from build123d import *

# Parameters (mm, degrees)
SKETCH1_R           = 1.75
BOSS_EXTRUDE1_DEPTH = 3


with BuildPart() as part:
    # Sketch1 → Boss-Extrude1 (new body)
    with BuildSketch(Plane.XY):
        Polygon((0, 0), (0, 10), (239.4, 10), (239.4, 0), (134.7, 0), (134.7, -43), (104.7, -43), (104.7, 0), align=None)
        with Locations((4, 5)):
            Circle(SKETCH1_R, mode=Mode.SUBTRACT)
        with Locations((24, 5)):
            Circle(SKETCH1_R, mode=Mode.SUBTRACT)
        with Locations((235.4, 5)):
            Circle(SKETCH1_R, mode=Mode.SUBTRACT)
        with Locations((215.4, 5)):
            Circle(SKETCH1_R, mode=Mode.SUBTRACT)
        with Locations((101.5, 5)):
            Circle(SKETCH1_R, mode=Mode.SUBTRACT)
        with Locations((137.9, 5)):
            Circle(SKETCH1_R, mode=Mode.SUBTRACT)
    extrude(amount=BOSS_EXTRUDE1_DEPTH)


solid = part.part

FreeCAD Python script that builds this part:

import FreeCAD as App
import Part
import Sketcher
from FreeCAD import Vector


def add_polygon(sketch, points):
    """Adds a closed chain of lines whose ends are joined by coincident constraints."""
    first, n = sketch.GeometryCount, len(points)
    for a, b in zip(points, points[1:] + points[:1]):
        sketch.addGeometry(Part.LineSegment(App.Vector(*a, 0), App.Vector(*b, 0)), False)
    for i in range(n):
        sketch.addConstraint(Sketcher.Constraint("Coincident", first + i, 2, first + (i + 1) % n, 1))

doc = App.newDocument("Part")
body = doc.addObject("PartDesign::Body", "Body")

# Sketch on XY plane
sketch1 = body.newObject("Sketcher::SketchObject", "Sketch")
sketch1.AttachmentSupport = (doc.getObject("XY_Plane"), [""])
sketch1.MapMode = "FlatFace"
add_polygon(sketch1, [(0, 10), (0, 0), (104.7, 0), (104.7, -43), (134.7, -43), (134.7, 0), (239.4, 0), (239.4, 10)])  # lines 0-7
sketch1.addGeometry(Part.Circle(Vector(235.4, 5, 0), Vector(0, 0, 1), 1.75), False)  # 8
sketch1.addGeometry(Part.Circle(Vector(215.4, 5, 0), Vector(0, 0, 1), 1.75), False)  # 9
sketch1.addGeometry(Part.Circle(Vector(137.9, 5, 0), Vector(0, 0, 1), 1.75), False)  # 10
sketch1.addGeometry(Part.Circle(Vector(101.5, 5, 0), Vector(0, 0, 1), 1.75), False)  # 11
sketch1.addGeometry(Part.Circle(Vector(24, 5, 0), Vector(0, 0, 1), 1.75), False)  # 12
sketch1.addGeometry(Part.Circle(Vector(4, 5, 0), Vector(0, 0, 1), 1.75), False)  # 13
sketch1.addConstraint(Sketcher.Constraint("Vertical", 0))
sketch1.addConstraint(Sketcher.Constraint("Horizontal", 1))
sketch1.addConstraint(Sketcher.Constraint("Vertical", 2))
sketch1.addConstraint(Sketcher.Constraint("Horizontal", 3))
sketch1.addConstraint(Sketcher.Constraint("Vertical", 4))
sketch1.addConstraint(Sketcher.Constraint("Horizontal", 5))
sketch1.addConstraint(Sketcher.Constraint("Vertical", 6))
sketch1.addConstraint(Sketcher.Constraint("Horizontal", 7))
sketch1.addConstraint(Sketcher.Constraint("Coincident", 0, 2, -1, 1))
sketch1.addConstraint(Sketcher.Constraint("Equal", 8, 9))
sketch1.addConstraint(Sketcher.Constraint("Equal", 9, 10))
sketch1.addConstraint(Sketcher.Constraint("Equal", 10, 11))
sketch1.addConstraint(Sketcher.Constraint("Equal", 11, 12))
sketch1.addConstraint(Sketcher.Constraint("Equal", 12, 13))
sketch1.addConstraint(Sketcher.Constraint("PointOnObject", 4, 2, -1))
sketch1.addConstraint(Sketcher.Constraint("Horizontal", 8, 3, 9, 3))
sketch1.addConstraint(Sketcher.Constraint("Horizontal", 9, 3, 10, 3))
sketch1.addConstraint(Sketcher.Constraint("Horizontal", 10, 3, 11, 3))
sketch1.addConstraint(Sketcher.Constraint("Horizontal", 11, 3, 12, 3))
sketch1.addConstraint(Sketcher.Constraint("Horizontal", 12, 3, 13, 3))
sketch1.addConstraint(Sketcher.Constraint("Equal", 1, 5))
sketch1.addConstraint(Sketcher.Constraint("Diameter", 8, 3.5))
sketch1.addConstraint(Sketcher.Constraint("DistanceX", 3, 1, 3, 2, 30.0))
sketch1.addConstraint(Sketcher.Constraint("DistanceY", 0, 2, 0, 1, 10.0))
sketch1.addConstraint(Sketcher.Constraint("DistanceY", 2, 2, 2, 1, 43.0))
sketch1.addConstraint(Sketcher.Constraint("DistanceX", 1, 1, 1, 2, 104.7))
sketch1.addConstraint(Sketcher.Constraint("DistanceY", -1, 1, 8, 3, 5.0))
sketch1.addConstraint(Sketcher.Constraint("DistanceX", -1, 1, 12, 3, 24.0))
sketch1.addConstraint(Sketcher.Constraint("DistanceX", -1, 1, 13, 3, 4.0))
sketch1.addConstraint(Sketcher.Constraint("DistanceX", 9, 3, 8, 3, 20.0))
sketch1.addConstraint(Sketcher.Constraint("DistanceX", 8, 3, 5, 2, 4.0))
sketch1.addConstraint(Sketcher.Constraint("DistanceX", -1, 1, 10, 3, 137.9))
sketch1.addConstraint(Sketcher.Constraint("DistanceX", -1, 1, 11, 3, 101.5))
pad1 = body.newObject("PartDesign::Pad", "Pad")
pad1.Profile = sketch1
pad1.Length = 3

doc.recompute()
